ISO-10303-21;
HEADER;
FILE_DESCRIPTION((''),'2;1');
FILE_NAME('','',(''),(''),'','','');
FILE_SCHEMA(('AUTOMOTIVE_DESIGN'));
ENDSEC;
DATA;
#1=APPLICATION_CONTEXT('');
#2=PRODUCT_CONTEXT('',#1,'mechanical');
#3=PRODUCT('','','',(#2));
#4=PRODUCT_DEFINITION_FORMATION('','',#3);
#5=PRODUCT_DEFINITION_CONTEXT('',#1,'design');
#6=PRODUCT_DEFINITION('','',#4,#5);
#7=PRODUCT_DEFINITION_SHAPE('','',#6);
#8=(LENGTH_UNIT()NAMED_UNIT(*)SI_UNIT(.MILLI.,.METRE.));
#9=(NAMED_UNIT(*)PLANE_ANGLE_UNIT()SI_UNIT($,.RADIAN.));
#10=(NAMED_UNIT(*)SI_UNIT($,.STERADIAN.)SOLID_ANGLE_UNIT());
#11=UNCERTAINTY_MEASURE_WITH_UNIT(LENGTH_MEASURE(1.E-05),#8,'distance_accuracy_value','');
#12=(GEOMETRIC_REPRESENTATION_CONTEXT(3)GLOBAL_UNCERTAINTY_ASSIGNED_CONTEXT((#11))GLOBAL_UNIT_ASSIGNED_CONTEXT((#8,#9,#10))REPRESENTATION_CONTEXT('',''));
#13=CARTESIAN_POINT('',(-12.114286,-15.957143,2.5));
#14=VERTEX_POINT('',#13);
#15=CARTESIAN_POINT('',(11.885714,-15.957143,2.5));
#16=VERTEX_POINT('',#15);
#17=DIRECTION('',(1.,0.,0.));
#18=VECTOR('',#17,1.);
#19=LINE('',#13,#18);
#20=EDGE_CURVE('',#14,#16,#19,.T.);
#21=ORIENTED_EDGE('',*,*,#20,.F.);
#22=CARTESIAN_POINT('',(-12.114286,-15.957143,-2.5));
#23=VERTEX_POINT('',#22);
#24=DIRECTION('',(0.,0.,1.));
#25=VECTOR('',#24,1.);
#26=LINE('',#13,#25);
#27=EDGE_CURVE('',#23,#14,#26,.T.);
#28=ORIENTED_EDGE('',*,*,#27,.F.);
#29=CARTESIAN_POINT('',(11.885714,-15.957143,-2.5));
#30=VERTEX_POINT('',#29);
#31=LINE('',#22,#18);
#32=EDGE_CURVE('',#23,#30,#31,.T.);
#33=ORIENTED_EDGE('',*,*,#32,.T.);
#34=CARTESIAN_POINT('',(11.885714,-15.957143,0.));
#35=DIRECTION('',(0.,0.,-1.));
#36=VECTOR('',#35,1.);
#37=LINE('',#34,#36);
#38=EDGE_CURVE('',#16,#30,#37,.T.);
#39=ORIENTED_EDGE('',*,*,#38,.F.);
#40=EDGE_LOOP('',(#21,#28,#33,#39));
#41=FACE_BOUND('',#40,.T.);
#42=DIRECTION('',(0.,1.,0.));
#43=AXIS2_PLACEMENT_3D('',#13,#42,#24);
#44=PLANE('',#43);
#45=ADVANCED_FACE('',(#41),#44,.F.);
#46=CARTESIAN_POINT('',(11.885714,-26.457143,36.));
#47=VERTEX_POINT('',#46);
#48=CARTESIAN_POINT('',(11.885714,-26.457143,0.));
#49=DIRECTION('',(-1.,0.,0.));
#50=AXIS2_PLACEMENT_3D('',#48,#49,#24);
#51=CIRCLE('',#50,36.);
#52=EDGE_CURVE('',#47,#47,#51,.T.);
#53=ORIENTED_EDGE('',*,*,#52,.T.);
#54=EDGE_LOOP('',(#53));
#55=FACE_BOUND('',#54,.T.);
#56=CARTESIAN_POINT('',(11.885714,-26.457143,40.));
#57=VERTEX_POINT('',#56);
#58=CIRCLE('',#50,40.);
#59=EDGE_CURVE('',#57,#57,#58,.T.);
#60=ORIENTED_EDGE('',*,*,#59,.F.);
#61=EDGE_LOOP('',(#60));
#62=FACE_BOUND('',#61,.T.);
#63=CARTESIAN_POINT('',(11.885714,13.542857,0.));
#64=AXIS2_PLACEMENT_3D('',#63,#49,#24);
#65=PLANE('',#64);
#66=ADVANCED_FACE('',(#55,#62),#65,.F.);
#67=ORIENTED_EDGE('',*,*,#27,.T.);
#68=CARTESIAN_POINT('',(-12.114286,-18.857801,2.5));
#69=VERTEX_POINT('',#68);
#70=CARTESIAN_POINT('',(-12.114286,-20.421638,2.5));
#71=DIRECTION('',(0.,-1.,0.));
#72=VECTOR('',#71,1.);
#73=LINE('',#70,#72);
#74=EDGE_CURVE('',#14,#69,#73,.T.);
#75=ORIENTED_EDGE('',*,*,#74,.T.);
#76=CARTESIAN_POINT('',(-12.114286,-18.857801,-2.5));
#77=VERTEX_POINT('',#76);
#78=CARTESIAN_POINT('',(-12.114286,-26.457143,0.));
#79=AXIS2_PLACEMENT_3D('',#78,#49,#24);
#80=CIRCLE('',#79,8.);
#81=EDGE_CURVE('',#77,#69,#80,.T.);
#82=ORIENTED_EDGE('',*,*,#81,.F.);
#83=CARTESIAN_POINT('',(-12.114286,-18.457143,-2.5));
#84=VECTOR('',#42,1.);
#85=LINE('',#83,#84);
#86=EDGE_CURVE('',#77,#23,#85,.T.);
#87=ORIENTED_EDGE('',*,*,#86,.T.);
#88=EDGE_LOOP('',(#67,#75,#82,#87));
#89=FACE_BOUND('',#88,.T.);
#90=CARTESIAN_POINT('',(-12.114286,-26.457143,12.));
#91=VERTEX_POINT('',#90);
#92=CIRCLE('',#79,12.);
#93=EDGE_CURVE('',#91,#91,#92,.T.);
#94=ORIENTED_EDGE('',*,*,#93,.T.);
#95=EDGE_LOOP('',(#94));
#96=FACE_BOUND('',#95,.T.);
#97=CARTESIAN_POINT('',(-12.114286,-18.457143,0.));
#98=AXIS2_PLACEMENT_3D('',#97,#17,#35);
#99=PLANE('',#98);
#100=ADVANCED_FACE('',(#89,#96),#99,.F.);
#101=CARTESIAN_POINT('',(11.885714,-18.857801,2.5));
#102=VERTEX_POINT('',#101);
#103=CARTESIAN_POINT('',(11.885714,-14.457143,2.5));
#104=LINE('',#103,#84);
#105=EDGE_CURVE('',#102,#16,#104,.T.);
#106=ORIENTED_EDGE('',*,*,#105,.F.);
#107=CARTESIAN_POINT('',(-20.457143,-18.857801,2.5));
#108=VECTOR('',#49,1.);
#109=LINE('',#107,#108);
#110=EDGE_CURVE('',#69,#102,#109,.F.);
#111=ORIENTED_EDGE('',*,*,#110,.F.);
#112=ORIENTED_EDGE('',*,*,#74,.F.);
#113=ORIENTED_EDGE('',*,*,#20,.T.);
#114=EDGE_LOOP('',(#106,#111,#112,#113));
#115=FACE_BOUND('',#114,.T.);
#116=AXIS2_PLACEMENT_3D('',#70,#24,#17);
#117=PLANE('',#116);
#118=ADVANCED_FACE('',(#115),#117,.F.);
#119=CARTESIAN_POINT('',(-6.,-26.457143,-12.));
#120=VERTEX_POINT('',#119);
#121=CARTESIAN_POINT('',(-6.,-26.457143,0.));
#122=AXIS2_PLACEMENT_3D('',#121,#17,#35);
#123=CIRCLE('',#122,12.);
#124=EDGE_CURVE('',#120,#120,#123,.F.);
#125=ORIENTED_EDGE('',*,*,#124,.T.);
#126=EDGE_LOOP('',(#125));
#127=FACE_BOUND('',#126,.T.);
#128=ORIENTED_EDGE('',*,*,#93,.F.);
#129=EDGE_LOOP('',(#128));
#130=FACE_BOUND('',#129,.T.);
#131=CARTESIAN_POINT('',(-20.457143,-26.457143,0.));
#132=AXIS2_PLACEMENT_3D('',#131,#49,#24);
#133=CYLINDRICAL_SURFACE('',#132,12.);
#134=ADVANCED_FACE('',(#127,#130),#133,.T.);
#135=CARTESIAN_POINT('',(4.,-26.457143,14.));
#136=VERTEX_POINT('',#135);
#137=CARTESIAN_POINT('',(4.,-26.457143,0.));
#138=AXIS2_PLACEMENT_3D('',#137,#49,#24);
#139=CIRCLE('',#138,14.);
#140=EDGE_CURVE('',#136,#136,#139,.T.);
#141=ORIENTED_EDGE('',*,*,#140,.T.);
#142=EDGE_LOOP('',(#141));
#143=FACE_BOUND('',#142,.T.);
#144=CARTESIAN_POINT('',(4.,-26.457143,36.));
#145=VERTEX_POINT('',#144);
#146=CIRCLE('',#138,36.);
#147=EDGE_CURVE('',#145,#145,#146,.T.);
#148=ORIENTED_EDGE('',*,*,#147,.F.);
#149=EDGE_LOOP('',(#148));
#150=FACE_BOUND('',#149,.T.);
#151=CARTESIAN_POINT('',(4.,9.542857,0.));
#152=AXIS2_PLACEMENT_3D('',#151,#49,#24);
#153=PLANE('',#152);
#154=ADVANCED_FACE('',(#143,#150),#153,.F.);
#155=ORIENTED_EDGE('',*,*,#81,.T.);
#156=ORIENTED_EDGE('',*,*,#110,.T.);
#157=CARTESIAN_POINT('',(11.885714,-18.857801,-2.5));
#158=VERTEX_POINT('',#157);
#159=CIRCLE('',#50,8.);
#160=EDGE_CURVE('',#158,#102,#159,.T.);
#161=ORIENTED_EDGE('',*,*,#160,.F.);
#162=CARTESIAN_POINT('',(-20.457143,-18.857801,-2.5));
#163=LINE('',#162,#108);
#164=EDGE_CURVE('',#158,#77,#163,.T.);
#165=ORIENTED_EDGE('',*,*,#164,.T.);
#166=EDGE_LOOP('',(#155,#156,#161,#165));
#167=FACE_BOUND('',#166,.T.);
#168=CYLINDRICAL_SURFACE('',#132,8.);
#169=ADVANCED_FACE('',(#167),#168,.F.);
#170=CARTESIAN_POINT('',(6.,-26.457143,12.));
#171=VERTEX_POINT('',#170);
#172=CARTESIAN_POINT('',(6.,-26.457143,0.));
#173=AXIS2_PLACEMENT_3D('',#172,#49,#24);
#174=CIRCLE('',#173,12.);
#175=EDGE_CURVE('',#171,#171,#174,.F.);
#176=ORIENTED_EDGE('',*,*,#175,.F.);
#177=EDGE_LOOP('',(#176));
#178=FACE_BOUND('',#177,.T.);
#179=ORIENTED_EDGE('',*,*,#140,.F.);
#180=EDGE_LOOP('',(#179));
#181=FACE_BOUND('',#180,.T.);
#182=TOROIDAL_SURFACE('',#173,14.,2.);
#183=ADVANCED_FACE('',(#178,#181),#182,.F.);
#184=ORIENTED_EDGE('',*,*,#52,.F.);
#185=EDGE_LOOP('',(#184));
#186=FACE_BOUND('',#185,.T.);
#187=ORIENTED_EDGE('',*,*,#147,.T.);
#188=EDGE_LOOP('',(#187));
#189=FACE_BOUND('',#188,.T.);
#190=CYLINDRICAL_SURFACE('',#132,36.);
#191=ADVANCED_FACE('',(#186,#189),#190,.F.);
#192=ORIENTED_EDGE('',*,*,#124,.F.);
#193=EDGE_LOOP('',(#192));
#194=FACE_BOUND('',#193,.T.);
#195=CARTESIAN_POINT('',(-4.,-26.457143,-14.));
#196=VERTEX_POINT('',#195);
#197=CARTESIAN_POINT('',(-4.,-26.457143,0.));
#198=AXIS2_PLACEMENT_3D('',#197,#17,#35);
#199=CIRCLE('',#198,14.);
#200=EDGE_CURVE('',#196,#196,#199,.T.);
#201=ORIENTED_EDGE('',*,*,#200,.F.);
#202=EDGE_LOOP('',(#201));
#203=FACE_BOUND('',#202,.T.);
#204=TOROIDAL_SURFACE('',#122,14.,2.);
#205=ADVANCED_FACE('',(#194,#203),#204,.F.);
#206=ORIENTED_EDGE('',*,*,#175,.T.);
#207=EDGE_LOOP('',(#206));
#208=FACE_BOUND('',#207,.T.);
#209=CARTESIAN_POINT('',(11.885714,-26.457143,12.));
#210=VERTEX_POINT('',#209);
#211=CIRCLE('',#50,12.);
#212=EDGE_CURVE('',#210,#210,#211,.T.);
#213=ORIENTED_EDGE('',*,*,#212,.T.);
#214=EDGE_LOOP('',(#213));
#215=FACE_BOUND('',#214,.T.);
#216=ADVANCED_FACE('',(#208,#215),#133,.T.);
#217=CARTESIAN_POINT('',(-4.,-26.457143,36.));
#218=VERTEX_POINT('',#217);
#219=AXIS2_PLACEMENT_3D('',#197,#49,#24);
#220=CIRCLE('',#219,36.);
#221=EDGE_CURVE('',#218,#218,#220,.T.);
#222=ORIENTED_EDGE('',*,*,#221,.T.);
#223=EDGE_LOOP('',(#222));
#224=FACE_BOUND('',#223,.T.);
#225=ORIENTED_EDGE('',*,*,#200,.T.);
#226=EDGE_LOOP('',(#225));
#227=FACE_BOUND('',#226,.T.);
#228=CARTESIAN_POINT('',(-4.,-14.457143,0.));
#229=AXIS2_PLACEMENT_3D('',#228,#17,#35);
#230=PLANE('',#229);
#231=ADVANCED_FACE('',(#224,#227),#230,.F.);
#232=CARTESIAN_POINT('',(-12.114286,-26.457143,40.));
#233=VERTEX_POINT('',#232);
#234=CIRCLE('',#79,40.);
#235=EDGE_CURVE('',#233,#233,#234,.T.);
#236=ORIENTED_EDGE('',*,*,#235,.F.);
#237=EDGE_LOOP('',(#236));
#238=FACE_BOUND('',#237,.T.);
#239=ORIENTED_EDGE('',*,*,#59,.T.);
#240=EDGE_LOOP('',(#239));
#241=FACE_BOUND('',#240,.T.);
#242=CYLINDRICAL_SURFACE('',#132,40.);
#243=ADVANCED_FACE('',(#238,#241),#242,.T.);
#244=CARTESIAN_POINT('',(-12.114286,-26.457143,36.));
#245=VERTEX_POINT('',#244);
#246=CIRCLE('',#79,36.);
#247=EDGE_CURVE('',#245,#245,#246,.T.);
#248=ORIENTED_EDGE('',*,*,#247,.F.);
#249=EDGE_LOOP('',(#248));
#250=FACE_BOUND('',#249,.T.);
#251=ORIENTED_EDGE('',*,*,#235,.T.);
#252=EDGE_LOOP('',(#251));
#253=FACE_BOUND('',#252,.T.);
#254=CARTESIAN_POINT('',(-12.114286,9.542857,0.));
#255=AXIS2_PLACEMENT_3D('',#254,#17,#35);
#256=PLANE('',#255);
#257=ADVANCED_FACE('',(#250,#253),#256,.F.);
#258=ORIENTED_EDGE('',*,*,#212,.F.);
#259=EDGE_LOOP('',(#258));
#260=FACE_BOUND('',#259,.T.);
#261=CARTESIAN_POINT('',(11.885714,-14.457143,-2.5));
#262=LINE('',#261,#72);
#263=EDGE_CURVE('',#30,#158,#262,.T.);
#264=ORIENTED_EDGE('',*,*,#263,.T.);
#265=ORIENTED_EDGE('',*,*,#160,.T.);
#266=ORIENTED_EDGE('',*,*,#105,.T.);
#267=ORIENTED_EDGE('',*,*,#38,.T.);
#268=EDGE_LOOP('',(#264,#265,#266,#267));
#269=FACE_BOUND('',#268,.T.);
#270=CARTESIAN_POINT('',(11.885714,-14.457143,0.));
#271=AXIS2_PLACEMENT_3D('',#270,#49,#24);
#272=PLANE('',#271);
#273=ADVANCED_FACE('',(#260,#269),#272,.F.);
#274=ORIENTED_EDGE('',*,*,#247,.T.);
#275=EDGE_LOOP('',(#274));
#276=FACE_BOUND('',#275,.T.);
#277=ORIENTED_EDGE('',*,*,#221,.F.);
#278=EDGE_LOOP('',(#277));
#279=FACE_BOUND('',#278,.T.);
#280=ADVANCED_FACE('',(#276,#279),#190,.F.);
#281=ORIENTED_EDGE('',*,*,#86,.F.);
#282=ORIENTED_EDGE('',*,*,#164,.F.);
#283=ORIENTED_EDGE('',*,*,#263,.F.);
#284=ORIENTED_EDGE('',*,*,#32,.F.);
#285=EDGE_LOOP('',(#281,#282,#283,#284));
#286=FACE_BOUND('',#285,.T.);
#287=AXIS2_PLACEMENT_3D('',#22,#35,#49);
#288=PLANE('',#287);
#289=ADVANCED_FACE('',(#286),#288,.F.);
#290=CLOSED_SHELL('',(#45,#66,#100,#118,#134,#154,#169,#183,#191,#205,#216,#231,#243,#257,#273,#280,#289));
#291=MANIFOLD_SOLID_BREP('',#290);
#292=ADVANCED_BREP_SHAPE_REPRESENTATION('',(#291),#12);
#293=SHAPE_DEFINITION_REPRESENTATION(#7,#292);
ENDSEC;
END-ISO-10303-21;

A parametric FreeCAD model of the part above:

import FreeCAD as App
import Part
import Sketcher

V = App.Vector


def edges_at(feature, points):
    """Names of the edges that pass closest to the given points."""
    edges = feature.Shape.Edges
    near = lambda p: min(range(len(edges)), key=lambda i: edges[i].distToShape(Part.Vertex(*p))[0])
    return sorted({f"Edge{near(p) + 1}" for p in points})


def add_polygon(sketch, points):
    """Adds a closed chain of lines whose ends are joined by coincident constraints."""
    first, n = sketch.GeometryCount, len(points)
    for a, b in zip(points, points[1:] + points[:1]):
        sketch.addGeometry(Part.LineSegment(App.Vector(*a, 0), App.Vector(*b, 0)), False)
    for i in range(n):
        sketch.addConstraint(Sketcher.Constraint("Coincident", first + i, 2, first + (i + 1) % n, 1))

doc = App.newDocument("Part")
params = doc.addObject("Spreadsheet::Sheet", "Params")
for row, (alias, value) in enumerate([
    ("sketch1_width", "24 mm"),
    ("sketch1_height", "4 mm"),
    ("revolution_angle", "360 deg"),
    ("sketch2_height", "5 mm"),
    ("fillet_radius", "2 mm"),
    ("fillet2_radius", "2 mm"),
], start=1):
    params.set(f"A{row}", alias)
    params.set(f"B{row}", "=" + value)
    params.setAlias(f"B{row}", alias)

body = doc.addObject("PartDesign::Body", "Body")

# Sketch on XY plane
sketch1 = body.newObject("Sketcher::SketchObject", "Sketch")
sketch1.AttachmentSupport = (doc.getObject("XY_Plane"), [""])
sketch1.MapMode = "FlatFace"
add_polygon(sketch1, [(11.9, 13.5), (-12.1, 13.5), (-12.1, 9.5), (-4, 9.5), (-4, -14.5), (-12.1, -14.5), (-12.1, -18.5), (11.9, -18.5), (11.9, -14.5), (4, -14.5), (4, 9.5), (11.9, 9.5)])  # lines 0-11
sketch1.addGeometry(Part.LineSegment(V(-12.1, -26.5, 0), V(11.9, -26.5, 0)), True)  # axis
sketch1.addConstraint(Sketcher.Constraint("Horizontal", 0))
sketch1.addConstraint(Sketcher.Constraint("Vertical", 1))
sketch1.addConstraint(Sketcher.Constraint("Horizontal", 2))
sketch1.addConstraint(Sketcher.Constraint("Vertical", 3))
sketch1.addConstraint(Sketcher.Constraint("Horizontal", 4))
sketch1.addConstraint(Sketcher.Constraint("Vertical", 5))
sketch1.addConstraint(Sketcher.Constraint("Horizontal", 6))
sketch1.addConstraint(Sketcher.Constraint("Vertical", 7))
sketch1.addConstraint(Sketcher.Constraint("Horizontal", 8))
sketch1.addConstraint(Sketcher.Constraint("Vertical", 9))
sketch1.addConstraint(Sketcher.Constraint("Horizontal", 10))
sketch1.addConstraint(Sketcher.Constraint("Vertical", 11))
sketch1.addConstraint(Sketcher.Constraint("Horizontal", 12))
sketch1.addConstraint(Sketcher.Constraint("Symmetric", 3, 2, 8, 2, -2))
sketch1.addConstraint(Sketcher.Constraint("Horizontal", 2, 2, 9, 2))
sketch1.addConstraint(Sketcher.Constraint("Vertical", 1, 2, 4, 2))
sketch1.addConstraint(Sketcher.Constraint("Vertical", 7, 2, 10, 2))
sketch1.addConstraint(Sketcher.Constraint("Vertical", 5, 2, 12, 1))
sketch1.addConstraint(Sketcher.Constraint("Vertical", 11, 2, 12, 2))
sketch1.addConstraint(Sketcher.Constraint("Equal", 12, 3))
sketch1.addConstraint(Sketcher.Constraint("Equal", 1, 5))
sketch1.addConstraint(Sketcher.Constraint("DistanceX", 0, 2, 0, 1, 24.0))
sketch1.addConstraint(Sketcher.Constraint("DistanceY", 1, 2, 1, 1, 4.0))
sketch1.addConstraint(Sketcher.Constraint("DistanceX", 2, 2, -1, 1, 4.0))
sketch1.addConstraint(Sketcher.Constraint("DistanceY", 12, 1, 5, 2, 8.0))
sketch1.addConstraint(Sketcher.Constraint("DistanceX", 2, 1, 2, 2, 8.114286))
sketch1.addConstraint(Sketcher.Constraint("DistanceY", -1, 1, 0, 2, 13.542857))
sketch1.setExpression("Constraints[33]", "Params.sketch1_width")
sketch1.setExpression("Constraints[34]", "Params.sketch1_height")
revolution = body.newObject("PartDesign::Revolution", "Revolution")
revolution.Profile = sketch1
revolution.ReferenceAxis = (sketch1, ["Axis0"])
revolution.setExpression("Angle", "Params.revolution_angle")

# Sketch on YZ plane
sketch2 = body.newObject("Sketcher::SketchObject", "Sketch001")
sketch2.AttachmentSupport = (doc.getObject("YZ_Plane"), [""])
sketch2.MapMode = "FlatFace"
sketch2.AttachmentOffset = App.Placement(V(0, 0, 12), App.Rotation())
add_polygon(sketch2, [(-16, 2.5), (-20.4, 2.5), (-20.4, -2.5), (-16, -2.5)])  # lines 0-3
sketch2.addConstraint(Sketcher.Constraint("Horizontal", 0))
sketch2.addConstraint(Sketcher.Constraint("Vertical", 1))
sketch2.addConstraint(Sketcher.Constraint("Horizontal", 2))
sketch2.addConstraint(Sketcher.Constraint("Vertical", 3))
sketch2.addConstraint(Sketcher.Constraint("DistanceY", 1, 2, 1, 1, 5.0))
sketch2.addConstraint(Sketcher.Constraint("DistanceY", -1, 1, 0, 2, 2.5))
sketch2.addConstraint(Sketcher.Constraint("DistanceX", 0, 2, 0, 1, 4.464495))
sketch2.addConstraint(Sketcher.Constraint("DistanceX", 0, 2, -1, 1, 20.421638))
sketch2.setExpression("Constraints[8]", "Params.sketch2_height")
pocket1 = body.newObject("PartDesign::Pocket", "Pocket")
pocket1.Profile = sketch2
pocket1.Type = "ThroughAll"
doc.recompute()

fillet = body.newObject("PartDesign::Fillet", "Fillet")
fillet.Base = (pocket1, edges_at(pocket1, [(4, -26.457, -12)]))
fillet.setExpression("Radius", "Params.fillet_radius")
doc.recompute()

fillet2 = body.newObject("PartDesign::Fillet", "Fillet001")
fillet2.Base = (fillet, edges_at(fillet, [(-4, -26.457, -12)]))
fillet2.setExpression("Radius", "Params.fillet2_radius")

doc.recompute()
